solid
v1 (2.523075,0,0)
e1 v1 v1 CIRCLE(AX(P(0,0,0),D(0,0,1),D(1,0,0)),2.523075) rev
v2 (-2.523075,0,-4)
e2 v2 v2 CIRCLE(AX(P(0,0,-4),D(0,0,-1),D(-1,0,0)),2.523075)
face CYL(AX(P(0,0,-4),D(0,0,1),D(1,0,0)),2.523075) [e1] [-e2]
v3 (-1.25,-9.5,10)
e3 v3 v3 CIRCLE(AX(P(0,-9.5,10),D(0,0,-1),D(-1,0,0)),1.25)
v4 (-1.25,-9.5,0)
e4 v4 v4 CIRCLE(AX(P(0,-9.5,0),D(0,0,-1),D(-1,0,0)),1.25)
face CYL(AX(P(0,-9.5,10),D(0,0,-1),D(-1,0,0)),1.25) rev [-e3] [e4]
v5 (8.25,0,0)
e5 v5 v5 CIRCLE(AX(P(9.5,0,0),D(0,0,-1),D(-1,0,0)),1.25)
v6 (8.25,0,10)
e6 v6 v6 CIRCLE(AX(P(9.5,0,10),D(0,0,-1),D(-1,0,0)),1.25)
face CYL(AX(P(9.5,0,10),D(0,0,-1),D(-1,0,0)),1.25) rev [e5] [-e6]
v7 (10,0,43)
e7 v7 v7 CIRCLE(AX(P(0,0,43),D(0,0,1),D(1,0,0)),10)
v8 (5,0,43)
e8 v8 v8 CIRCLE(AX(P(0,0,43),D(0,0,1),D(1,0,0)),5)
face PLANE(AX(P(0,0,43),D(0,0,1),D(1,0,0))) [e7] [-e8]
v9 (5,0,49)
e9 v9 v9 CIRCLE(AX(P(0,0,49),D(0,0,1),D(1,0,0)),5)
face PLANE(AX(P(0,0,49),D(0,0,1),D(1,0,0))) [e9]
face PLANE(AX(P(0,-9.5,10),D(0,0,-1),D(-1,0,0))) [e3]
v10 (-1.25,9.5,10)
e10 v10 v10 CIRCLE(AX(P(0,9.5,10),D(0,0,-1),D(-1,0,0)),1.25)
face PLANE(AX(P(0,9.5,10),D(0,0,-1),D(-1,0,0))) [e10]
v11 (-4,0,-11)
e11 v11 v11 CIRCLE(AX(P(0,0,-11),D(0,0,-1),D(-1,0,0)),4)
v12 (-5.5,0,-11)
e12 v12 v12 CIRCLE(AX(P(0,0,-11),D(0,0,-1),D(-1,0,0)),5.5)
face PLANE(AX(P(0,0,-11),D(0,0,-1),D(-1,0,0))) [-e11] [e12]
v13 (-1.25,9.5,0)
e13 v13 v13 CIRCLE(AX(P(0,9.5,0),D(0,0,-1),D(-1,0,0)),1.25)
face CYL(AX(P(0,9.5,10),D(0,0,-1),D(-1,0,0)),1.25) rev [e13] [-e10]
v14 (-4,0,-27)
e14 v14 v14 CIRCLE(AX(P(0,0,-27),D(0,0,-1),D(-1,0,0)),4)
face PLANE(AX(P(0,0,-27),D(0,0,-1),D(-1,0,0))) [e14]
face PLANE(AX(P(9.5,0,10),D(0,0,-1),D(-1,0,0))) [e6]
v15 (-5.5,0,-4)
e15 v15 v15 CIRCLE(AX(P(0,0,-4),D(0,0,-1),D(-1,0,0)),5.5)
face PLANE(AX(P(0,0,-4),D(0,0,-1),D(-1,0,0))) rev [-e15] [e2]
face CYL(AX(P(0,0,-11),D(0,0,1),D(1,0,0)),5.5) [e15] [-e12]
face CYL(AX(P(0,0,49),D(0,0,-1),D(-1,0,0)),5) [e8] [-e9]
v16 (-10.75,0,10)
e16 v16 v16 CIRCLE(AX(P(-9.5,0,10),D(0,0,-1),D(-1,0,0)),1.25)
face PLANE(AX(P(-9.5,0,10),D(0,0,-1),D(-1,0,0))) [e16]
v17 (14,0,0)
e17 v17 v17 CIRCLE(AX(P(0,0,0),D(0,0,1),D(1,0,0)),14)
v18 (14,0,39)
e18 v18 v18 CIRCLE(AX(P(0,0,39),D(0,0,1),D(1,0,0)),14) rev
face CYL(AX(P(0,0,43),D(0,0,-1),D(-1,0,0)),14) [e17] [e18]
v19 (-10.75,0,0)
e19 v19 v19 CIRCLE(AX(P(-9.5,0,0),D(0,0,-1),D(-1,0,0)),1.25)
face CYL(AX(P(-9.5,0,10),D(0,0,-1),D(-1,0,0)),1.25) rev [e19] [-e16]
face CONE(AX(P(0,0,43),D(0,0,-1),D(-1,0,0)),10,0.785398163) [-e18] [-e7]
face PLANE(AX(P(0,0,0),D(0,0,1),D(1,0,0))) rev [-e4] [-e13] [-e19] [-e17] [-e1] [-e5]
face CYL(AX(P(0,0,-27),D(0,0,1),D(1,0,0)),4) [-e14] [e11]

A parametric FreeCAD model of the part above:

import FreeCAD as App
import Part
import Sketcher


def edges_at(feature, points):
    """Names of the edges that pass closest to the given points."""
    edges = feature.Shape.Edges
    near = lambda p: min(range(len(edges)), key=lambda i: edges[i].distToShape(Part.Vertex(*p))[0])
    return sorted({f"Edge{near(p) + 1}" for p in points})

doc = App.newDocument("Part")
body = doc.addObject("PartDesign::Body", "Body")

sketch1 = body.newObject("Sketcher::SketchObject", "Sketch")
sketch1.AttachmentSupport = (doc.getObject("XY_Plane"), [""])
sketch1.MapMode = "FlatFace"
sketch1.addGeometry(Part.Circle(App.Vector(0, 0, 0), App.Vector(0, 0, 1), 14), False)
sketch1.addConstraint(Sketcher.Constraint("Coincident", 0, 3, -1, 1))
sketch1.addConstraint(Sketcher.Constraint("Diameter", 0, 28.0))
pad1 = body.newObject("PartDesign::Pad", "Pad")
pad1.Profile = sketch1
pad1.Length = 43
doc.recompute()

chamfer = body.newObject("PartDesign::Chamfer", "Chamfer")
chamfer.Base = (pad1, edges_at(pad1, [(-14, 0, 43)]))
chamfer.Size = 4

sketch2 = body.newObject("Sketcher::SketchObject", "Sketch001")
sketch2.AttachmentSupport = (doc.getObject("XY_Plane"), [""])
sketch2.MapMode = "FlatFace"
sketch2.AttachmentOffset = App.Placement(App.Vector(0, 0, 43), App.Rotation())
sketch2.addGeometry(Part.Circle(App.Vector(0, 0, 0), App.Vector(0, 0, 1), 5), False)
sketch2.addConstraint(Sketcher.Constraint("Coincident", 0, 3, -1, 1))
sketch2.addConstraint(Sketcher.Constraint("Diameter", 0, 10.0))
pad2 = body.newObject("PartDesign::Pad", "Pad001")
pad2.Profile = sketch2
pad2.Length = 6

sketch3 = body.newObject("Sketcher::SketchObject", "Sketch002")
sketch3.AttachmentSupport = (doc.getObject("XY_Plane"), [""])
sketch3.MapMode = "FlatFace"
sketch3.addGeometry(Part.Circle(App.Vector(0, 9.5, 0), App.Vector(0, 0, 1), 1.2), False)
sketch3.addGeometry(Part.Circle(App.Vector(-9.5, 0, 0), App.Vector(0, 0, 1), 1.2), False)
sketch3.addGeometry(Part.Circle(App.Vector(0, -9.5, 0), App.Vector(0, 0, 1), 1.2), False)
sketch3.addGeometry(Part.Circle(App.Vector(9.5, 0, 0), App.Vector(0, 0, 1), 1.2), False)
sketch3.addConstraint(Sketcher.Constraint("Equal", 0, 1))
sketch3.addConstraint(Sketcher.Constraint("Equal", 1, 2))
sketch3.addConstraint(Sketcher.Constraint("Equal", 2, 3))
sketch3.addConstraint(Sketcher.Constraint("Symmetric", 0, 3, 2, 3, -1, 1))
sketch3.addConstraint(Sketcher.Constraint("Symmetric", 1, 3, 3, 3, -1, 1))
sketch3.addConstraint(Sketcher.Constraint("PointOnObject", 0, 3, -2))
sketch3.addConstraint(Sketcher.Constraint("PointOnObject", 1, 3, -1))
sketch3.addConstraint(Sketcher.Constraint("Diameter", 0, 2.5))
sketch3.addConstraint(Sketcher.Constraint("DistanceY", 2, 3, 0, 3, 19.0))
sketch3.addConstraint(Sketcher.Constraint("DistanceX", 1, 3, 3, 3, 19.0))
pocket1 = body.newObject("PartDesign::Pocket", "Pocket")
pocket1.Profile = sketch3
pocket1.Length = 10
pocket1.Reversed = True

sketch4 = body.newObject("Sketcher::SketchObject", "Sketch003")
sketch4.AttachmentSupport = (doc.getObject("XY_Plane"), [""])
sketch4.MapMode = "FlatFace"
sketch4.addGeometry(Part.Circle(App.Vector(0, 0, 0), App.Vector(0, 0, 1), 2.5), False)
sketch4.addConstraint(Sketcher.Constraint("Coincident", 0, 3, -1, 1))
sketch4.addConstraint(Sketcher.Constraint("Diameter", 0, 5.046149))
pad3 = body.newObject("PartDesign::Pad", "Pad002")
pad3.Profile = sketch4
pad3.Length = 4
pad3.Reversed = True

sketch5 = body.newObject("Sketcher::SketchObject", "Sketch004")
sketch5.AttachmentSupport = (doc.getObject("XY_Plane"), [""])
sketch5.MapMode = "FlatFace"
sketch5.AttachmentOffset = App.Placement(App.Vector(0, 0, -4), App.Rotation())
sketch5.addGeometry(Part.Circle(App.Vector(0, 0, 0), App.Vector(0, 0, 1), 6), False)
sketch5.addConstraint(Sketcher.Constraint("Coincident", 0, 3, -1, 1))
sketch5.addConstraint(Sketcher.Constraint("Diameter", 0, 11.0))
pad4 = body.newObject("PartDesign::Pad", "Pad003")
pad4.Profile = sketch5
pad4.Length = 7
pad4.Reversed = True

sketch6 = body.newObject("Sketcher::SketchObject", "Sketch005")
sketch6.AttachmentSupport = (doc.getObject("XY_Plane"), [""])
sketch6.MapMode = "FlatFace"
sketch6.AttachmentOffset = App.Placement(App.Vector(0, 0, -11), App.Rotation())
sketch6.addGeometry(Part.Circle(App.Vector(0, 0, 0), App.Vector(0, 0, 1), 4), False)
sketch6.addConstraint(Sketcher.Constraint("Coincident", 0, 3, -1, 1))
sketch6.addConstraint(Sketcher.Constraint("Diameter", 0, 8.0))
pad5 = body.newObject("PartDesign::Pad", "Pad004")
pad5.Profile = sketch6
pad5.Length = 16
pad5.Reversed = True

doc.recompute()
